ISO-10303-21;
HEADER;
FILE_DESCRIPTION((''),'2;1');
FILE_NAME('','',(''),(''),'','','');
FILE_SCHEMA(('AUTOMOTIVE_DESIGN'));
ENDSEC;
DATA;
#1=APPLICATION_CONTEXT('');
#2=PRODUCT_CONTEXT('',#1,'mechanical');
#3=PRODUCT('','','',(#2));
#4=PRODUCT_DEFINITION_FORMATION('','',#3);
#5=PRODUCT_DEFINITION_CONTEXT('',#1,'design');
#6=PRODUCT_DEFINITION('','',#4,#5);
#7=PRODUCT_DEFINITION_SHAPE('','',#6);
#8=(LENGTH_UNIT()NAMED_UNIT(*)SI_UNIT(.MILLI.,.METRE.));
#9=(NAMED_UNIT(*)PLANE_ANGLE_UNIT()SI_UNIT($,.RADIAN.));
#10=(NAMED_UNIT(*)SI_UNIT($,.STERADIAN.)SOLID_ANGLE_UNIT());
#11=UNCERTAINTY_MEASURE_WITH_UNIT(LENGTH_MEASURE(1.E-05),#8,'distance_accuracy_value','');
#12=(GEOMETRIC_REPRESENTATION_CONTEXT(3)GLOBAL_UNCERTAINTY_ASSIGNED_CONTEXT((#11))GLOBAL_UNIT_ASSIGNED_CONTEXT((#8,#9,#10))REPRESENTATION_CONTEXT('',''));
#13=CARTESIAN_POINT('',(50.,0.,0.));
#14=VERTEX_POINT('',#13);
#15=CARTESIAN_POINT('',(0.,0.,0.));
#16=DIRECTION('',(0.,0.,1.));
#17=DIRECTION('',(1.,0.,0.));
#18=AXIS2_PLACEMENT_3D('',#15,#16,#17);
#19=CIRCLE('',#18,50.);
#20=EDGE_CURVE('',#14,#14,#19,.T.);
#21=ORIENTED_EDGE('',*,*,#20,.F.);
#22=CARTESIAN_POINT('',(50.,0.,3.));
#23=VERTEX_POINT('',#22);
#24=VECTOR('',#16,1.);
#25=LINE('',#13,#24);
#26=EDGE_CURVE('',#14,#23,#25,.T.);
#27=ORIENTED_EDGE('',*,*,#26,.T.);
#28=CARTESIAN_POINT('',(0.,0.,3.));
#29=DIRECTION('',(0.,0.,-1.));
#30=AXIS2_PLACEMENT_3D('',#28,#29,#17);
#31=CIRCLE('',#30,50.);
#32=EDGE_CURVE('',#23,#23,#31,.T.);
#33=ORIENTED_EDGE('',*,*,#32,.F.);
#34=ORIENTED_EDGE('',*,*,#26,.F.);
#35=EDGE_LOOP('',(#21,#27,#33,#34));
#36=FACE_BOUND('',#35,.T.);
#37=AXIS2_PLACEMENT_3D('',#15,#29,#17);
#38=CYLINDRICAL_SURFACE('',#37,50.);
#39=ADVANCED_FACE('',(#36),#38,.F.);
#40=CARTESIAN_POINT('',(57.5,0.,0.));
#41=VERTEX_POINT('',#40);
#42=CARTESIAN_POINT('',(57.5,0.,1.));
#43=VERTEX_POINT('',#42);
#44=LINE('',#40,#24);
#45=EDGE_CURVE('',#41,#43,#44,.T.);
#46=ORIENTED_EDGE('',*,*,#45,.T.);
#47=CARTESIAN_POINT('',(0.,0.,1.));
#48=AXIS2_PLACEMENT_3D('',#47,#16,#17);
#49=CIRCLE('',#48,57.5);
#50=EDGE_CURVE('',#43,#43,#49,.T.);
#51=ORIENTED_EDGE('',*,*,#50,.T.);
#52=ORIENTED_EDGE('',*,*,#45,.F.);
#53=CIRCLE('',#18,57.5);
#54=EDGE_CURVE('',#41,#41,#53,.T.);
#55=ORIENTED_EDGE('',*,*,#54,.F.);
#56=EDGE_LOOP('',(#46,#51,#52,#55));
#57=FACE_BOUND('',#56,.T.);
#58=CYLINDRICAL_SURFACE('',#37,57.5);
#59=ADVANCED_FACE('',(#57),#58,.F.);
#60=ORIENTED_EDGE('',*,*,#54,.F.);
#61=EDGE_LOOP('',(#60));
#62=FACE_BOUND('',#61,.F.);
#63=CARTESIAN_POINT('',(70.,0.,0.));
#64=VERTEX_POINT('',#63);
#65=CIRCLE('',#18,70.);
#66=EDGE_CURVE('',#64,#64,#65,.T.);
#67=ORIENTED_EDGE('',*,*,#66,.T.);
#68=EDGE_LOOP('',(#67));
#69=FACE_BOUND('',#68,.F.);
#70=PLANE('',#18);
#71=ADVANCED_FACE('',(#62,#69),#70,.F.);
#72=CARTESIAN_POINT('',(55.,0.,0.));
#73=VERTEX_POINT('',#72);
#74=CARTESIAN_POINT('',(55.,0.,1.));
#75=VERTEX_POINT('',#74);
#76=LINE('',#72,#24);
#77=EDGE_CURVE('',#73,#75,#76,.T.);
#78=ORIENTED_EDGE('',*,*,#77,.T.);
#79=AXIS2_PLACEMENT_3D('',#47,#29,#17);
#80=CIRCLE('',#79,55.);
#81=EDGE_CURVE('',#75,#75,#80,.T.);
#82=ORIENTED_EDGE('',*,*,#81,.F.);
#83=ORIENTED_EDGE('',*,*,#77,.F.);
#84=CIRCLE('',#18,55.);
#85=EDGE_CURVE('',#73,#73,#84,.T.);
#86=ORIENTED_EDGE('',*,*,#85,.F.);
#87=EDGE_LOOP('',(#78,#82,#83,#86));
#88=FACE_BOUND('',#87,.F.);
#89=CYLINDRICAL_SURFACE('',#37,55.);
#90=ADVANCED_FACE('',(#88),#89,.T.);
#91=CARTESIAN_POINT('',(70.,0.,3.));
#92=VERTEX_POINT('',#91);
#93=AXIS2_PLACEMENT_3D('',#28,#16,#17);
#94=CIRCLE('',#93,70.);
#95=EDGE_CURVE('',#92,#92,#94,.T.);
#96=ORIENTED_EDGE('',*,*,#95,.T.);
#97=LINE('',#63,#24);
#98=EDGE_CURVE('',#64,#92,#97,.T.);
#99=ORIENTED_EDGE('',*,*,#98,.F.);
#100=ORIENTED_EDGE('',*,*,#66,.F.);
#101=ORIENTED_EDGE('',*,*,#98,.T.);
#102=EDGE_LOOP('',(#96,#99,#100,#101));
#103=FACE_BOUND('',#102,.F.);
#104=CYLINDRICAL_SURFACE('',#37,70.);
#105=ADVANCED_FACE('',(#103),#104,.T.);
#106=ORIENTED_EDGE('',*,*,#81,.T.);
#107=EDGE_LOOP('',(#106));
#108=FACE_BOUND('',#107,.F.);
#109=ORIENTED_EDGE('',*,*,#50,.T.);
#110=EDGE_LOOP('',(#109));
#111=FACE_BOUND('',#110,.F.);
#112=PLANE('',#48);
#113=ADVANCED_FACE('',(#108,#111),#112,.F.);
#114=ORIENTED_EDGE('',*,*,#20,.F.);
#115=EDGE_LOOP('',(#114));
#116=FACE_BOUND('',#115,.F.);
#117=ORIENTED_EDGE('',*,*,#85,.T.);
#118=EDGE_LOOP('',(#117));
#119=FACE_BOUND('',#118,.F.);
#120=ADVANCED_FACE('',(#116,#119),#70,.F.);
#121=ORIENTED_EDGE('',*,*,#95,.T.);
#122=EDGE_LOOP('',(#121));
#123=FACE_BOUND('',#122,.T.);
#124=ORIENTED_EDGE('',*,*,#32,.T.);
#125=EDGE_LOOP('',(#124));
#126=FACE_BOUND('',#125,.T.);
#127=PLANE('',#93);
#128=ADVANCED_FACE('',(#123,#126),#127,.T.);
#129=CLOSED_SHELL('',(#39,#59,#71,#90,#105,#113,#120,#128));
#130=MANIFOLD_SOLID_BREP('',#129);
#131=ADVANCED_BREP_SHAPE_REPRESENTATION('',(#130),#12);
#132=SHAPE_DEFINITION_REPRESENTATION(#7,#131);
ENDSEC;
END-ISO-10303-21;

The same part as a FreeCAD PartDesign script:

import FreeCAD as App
import Part
import Sketcher
from FreeCAD import Vector
Q = App.Units.Quantity

doc = App.newDocument("Part")
body = doc.addObject("PartDesign::Body", "Body")

sketch1 = doc.addObject("Sketcher::SketchObject", "Sketch")
body.addObject(sketch1)
sketch1.AttachmentSupport = (doc.XY_Plane, [""])
sketch1.MapMode = "FlatFace"
sketch1.addGeometry(Part.Circle(Vector(0, 0, 0), Vector(0, 0, 1), 70), False)
sketch1.addConstraint([
    Sketcher.Constraint("Coincident", 0, 3, -1, 1),
    Sketcher.Constraint("Diameter", 0, Q("140 mm")),
])
pad1 = doc.addObject("PartDesign::Pad", "Pad")
body.addObject(pad1)
pad1.Profile = sketch1
pad1.Length = 3

sketch2 = doc.addObject("Sketcher::SketchObject", "Sketch001")
body.addObject(sketch2)
sketch2.AttachmentSupport = (doc.XY_Plane, [""])
sketch2.MapMode = "FlatFace"
sketch2.addGeometry(Part.Circle(Vector(0, 0, 0), Vector(0, 0, 1), 57.5), False)
sketch2.addConstraint([
    Sketcher.Constraint("Coincident", 0, 3, -1, 1),
    Sketcher.Constraint("Diameter", 0, Q("115 mm")),
])
pocket1 = doc.addObject("PartDesign::Pocket", "Pocket")
body.addObject(pocket1)
pocket1.Profile = sketch2
pocket1.Length = 1
pocket1.Reversed = True

sketch3 = doc.addObject("Sketcher::SketchObject", "Sketch002")
body.addObject(sketch3)
sketch3.AttachmentSupport = (doc.XY_Plane, [""])
sketch3.MapMode = "FlatFace"
sketch3.addGeometry(Part.Circle(Vector(0, 0, 0), Vector(0, 0, 1), 55), False)
sketch3.addConstraint([
    Sketcher.Constraint("Coincident", 0, 3, -1, 1),
    Sketcher.Constraint("Diameter", 0, Q("110 mm")),
])
pad2 = doc.addObject("PartDesign::Pad", "Pad001")
body.addObject(pad2)
pad2.Profile = sketch3
pad2.Length = 3

sketch4 = doc.addObject("Sketcher::SketchObject", "Sketch003")
body.addObject(sketch4)
sketch4.AttachmentSupport = (doc.XY_Plane, [""])
sketch4.MapMode = "FlatFace"
sketch4.addGeometry(Part.Circle(Vector(0, 0, 0), Vector(0, 0, 1), 50), False)
sketch4.addConstraint([
    Sketcher.Constraint("Coincident", 0, 3, -1, 1),
    Sketcher.Constraint("Diameter", 0, Q("100 mm")),
])
pocket2 = doc.addObject("PartDesign::Pocket", "Pocket001")
body.addObject(pocket2)
pocket2.Profile = sketch4
pocket2.Type = "ThroughAll"
pocket2.Midplane = True

doc.recompute()
